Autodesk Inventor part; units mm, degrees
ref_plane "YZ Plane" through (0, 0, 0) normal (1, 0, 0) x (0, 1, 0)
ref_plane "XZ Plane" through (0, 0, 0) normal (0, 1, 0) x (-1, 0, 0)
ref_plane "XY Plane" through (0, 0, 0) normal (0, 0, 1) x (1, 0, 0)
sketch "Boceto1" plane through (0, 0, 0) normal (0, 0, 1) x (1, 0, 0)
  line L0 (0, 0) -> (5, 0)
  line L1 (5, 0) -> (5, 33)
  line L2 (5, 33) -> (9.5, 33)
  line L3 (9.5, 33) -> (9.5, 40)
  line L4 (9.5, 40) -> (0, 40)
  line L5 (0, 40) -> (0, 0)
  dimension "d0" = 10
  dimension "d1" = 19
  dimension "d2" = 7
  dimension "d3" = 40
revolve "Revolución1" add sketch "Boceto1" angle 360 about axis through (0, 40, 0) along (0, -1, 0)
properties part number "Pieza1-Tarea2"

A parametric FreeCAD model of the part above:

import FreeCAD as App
import Part
import Sketcher
from FreeCAD import Vector
Q = App.Units.Quantity


def add_polygon(sketch, points):
    """Adds a closed chain of lines whose ends are joined by coincident constraints."""
    first, n = sketch.GeometryCount, len(points)
    for a, b in zip(points, points[1:] + points[:1]):
        sketch.addGeometry(Part.LineSegment(App.Vector(*a, 0), App.Vector(*b, 0)), False)
    for i in range(n):
        sketch.addConstraint(Sketcher.Constraint("Coincident", first + i, 2, first + (i + 1) % n, 1))

doc = App.newDocument("Part")
body = doc.addObject("PartDesign::Body", "Body")

# Sketch on XY plane
sketch1 = body.newObject("Sketcher::SketchObject", "Sketch")
sketch1.AttachmentSupport = (doc.getObject("XY_Plane"), [""])
sketch1.MapMode = "FlatFace"
add_polygon(sketch1, [(0, 40), (0, 0), (5, 0), (5, 33), (9.5, 33), (9.5, 40)])  # lines 0-5
sketch1.addConstraint([
    Sketcher.Constraint("Vertical", 0),
    Sketcher.Constraint("Horizontal", 1),
    Sketcher.Constraint("Vertical", 2),
    Sketcher.Constraint("Horizontal", 3),
    Sketcher.Constraint("Vertical", 4),
    Sketcher.Constraint("Horizontal", 5),
    Sketcher.Constraint("Coincident", 0, 2, -1, 1),
    Sketcher.Constraint("DistanceY", 0, 2, 0, 1, Q("40 mm")),
    Sketcher.Constraint("DistanceY", 4, 1, 4, 2, Q("7 mm")),
    Sketcher.Constraint("DistanceX", 1, 1, 1, 2, Q("5 mm")),
    Sketcher.Constraint("DistanceX", 3, 1, 3, 2, Q("4.5 mm")),
])
revolution = body.newObject("PartDesign::Revolution", "Revolution")
revolution.Profile = sketch1
revolution.ReferenceAxis = (sketch1, ["V_Axis"])
revolution.Angle = 360

doc.recompute()
